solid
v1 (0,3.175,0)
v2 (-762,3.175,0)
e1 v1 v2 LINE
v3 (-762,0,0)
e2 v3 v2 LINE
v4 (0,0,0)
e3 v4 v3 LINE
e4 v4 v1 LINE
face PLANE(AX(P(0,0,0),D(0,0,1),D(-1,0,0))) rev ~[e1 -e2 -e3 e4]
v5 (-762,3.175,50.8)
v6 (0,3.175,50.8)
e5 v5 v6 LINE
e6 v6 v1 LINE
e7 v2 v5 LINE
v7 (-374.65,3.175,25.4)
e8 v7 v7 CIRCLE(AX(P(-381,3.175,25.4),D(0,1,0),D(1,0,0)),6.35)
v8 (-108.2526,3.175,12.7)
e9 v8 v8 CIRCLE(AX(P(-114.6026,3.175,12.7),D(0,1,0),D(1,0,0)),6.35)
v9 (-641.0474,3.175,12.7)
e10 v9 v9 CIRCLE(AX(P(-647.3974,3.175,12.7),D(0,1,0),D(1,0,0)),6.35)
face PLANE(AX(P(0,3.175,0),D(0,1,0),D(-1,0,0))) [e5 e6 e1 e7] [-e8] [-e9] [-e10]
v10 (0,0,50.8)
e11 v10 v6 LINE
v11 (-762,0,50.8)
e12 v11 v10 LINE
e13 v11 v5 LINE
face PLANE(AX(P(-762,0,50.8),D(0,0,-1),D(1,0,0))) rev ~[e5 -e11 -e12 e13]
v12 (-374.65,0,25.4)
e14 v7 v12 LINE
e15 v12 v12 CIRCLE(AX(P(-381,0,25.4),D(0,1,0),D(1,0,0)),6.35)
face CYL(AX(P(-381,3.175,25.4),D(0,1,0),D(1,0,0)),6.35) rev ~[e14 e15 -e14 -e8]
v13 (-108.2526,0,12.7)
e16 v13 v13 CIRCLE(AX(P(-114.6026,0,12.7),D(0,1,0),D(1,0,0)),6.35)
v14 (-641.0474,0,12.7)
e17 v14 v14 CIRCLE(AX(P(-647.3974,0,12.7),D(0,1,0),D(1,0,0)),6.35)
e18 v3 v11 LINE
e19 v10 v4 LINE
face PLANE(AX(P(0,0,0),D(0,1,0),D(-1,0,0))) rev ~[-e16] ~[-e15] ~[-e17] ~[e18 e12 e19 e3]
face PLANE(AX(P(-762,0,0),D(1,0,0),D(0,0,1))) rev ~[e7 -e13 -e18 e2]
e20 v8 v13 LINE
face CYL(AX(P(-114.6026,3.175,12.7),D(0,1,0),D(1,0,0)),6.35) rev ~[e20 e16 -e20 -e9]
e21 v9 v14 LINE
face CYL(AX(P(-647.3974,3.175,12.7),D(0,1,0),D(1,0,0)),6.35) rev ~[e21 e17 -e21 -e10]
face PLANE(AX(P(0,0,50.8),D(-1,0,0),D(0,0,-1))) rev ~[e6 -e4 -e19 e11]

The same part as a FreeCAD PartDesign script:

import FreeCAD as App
import Part
import Sketcher
from FreeCAD import Vector
Q = App.Units.Quantity

doc = App.newDocument("Part")
params = doc.addObject("Spreadsheet::Sheet", "Params")
for row, (alias, value) in enumerate([
    ("sketch1_width", "30 in"),
    ("sketch1_height", "2 in"),
    ("pad1_length", "0.125 in"),
    ("sketch2_diameter", "0.5 in"),
    ("pocket1_length", "0.125 in"),
], start=1):
    params.set(f"A{row}", alias)
    params.set(f"B{row}", "=" + value)
    params.setAlias(f"B{row}", alias)

body = doc.addObject("PartDesign::Body", "Body")

# Sketch on XZ plane
sketch1 = body.newObject("Sketcher::SketchObject", "Sketch")
sketch1.AttachmentSupport = (doc.getObject("XZ_Plane"), [""])
sketch1.MapMode = "FlatFace"
sketch1.addGeometry(Part.LineSegment(Vector(0, 50.8, 0), Vector(0, 0, 0)), False)
sketch1.addGeometry(Part.LineSegment(Vector(0, 0, 0), Vector(-762, 0, 0)), False)
sketch1.addGeometry(Part.LineSegment(Vector(-762, 0, 0), Vector(-762, 50.8, 0)), False)
sketch1.addGeometry(Part.LineSegment(Vector(-762, 50.8, 0), Vector(0, 50.8, 0)), False)
sketch1.addConstraint(Sketcher.Constraint("Coincident", 0, 2, 1, 1))
sketch1.addConstraint(Sketcher.Constraint("Coincident", 1, 2, 2, 1))
sketch1.addConstraint(Sketcher.Constraint("Coincident", 2, 2, 3, 1))
sketch1.addConstraint(Sketcher.Constraint("Coincident", 3, 2, 0, 1))
sketch1.addConstraint(Sketcher.Constraint("Vertical", 0))
sketch1.addConstraint(Sketcher.Constraint("Horizontal", 1))
sketch1.addConstraint(Sketcher.Constraint("Vertical", 2))
sketch1.addConstraint(Sketcher.Constraint("Horizontal", 3))
sketch1.addConstraint(Sketcher.Constraint("Coincident", 0, 2, -1, 1))
sketch1.addConstraint(Sketcher.Constraint("DistanceX", 1, 2, 1, 1, Q("30 in")))
sketch1.addConstraint(Sketcher.Constraint("DistanceY", 0, 2, 0, 1, Q("2 in")))
sketch1.setExpression("Constraints[9]", "Params.sketch1_width")
sketch1.setExpression("Constraints[10]", "Params.sketch1_height")
pad1 = body.newObject("PartDesign::Pad", "Pad")
pad1.Profile = sketch1
pad1.setExpression("Length", "Params.pad1_length")
pad1.Reversed = True

# Sketch on XZ plane
sketch2 = body.newObject("Sketcher::SketchObject", "Sketch001")
sketch2.AttachmentSupport = (doc.getObject("XZ_Plane"), [""])
sketch2.MapMode = "FlatFace"
sketch2.AttachmentOffset = App.Placement(Vector(0, 0, -0.125 * 25.4), App.Rotation())
sketch2.addGeometry(Part.Circle(Vector(-381, 25.4, 0), Vector(0, 0, 1), 6.35), False)
sketch2.addGeometry(Part.Circle(Vector(-114.6026, 12.7, 0), Vector(0, 0, 1), 6.35), False)
sketch2.addGeometry(Part.Circle(Vector(-647.3974, 12.7, 0), Vector(0, 0, 1), 6.35), False)
sketch2.addConstraint(Sketcher.Constraint("Equal", 0, 1))
sketch2.addConstraint(Sketcher.Constraint("Equal", 1, 2))
sketch2.addConstraint(Sketcher.Constraint("Horizontal", 1, 3, 2, 3))
sketch2.addConstraint(Sketcher.Constraint("Diameter", 0, Q("0.5 in")))
sketch2.addConstraint(Sketcher.Constraint("DistanceX", 0, 3, -1, 1, Q("15 in")))
sketch2.addConstraint(Sketcher.Constraint("DistanceY", -1, 1, 0, 3, Q("1 in")))
sketch2.addConstraint(Sketcher.Constraint("DistanceY", -1, 1, 1, 3, Q("0.5 in")))
sketch2.addConstraint(Sketcher.Constraint("DistanceX", 1, 3, -1, 1, Q("114.6026 mm")))
sketch2.addConstraint(Sketcher.Constraint("DistanceX", 2, 3, -1, 1, Q("647.3974 mm")))
sketch2.setExpression("Constraints[3]", "Params.sketch2_diameter")
pocket1 = body.newObject("PartDesign::Pocket", "Pocket")
pocket1.Profile = sketch2
pocket1.setExpression("Length", "Params.pocket1_length")
pocket1.Reversed = True

doc.recompute()
